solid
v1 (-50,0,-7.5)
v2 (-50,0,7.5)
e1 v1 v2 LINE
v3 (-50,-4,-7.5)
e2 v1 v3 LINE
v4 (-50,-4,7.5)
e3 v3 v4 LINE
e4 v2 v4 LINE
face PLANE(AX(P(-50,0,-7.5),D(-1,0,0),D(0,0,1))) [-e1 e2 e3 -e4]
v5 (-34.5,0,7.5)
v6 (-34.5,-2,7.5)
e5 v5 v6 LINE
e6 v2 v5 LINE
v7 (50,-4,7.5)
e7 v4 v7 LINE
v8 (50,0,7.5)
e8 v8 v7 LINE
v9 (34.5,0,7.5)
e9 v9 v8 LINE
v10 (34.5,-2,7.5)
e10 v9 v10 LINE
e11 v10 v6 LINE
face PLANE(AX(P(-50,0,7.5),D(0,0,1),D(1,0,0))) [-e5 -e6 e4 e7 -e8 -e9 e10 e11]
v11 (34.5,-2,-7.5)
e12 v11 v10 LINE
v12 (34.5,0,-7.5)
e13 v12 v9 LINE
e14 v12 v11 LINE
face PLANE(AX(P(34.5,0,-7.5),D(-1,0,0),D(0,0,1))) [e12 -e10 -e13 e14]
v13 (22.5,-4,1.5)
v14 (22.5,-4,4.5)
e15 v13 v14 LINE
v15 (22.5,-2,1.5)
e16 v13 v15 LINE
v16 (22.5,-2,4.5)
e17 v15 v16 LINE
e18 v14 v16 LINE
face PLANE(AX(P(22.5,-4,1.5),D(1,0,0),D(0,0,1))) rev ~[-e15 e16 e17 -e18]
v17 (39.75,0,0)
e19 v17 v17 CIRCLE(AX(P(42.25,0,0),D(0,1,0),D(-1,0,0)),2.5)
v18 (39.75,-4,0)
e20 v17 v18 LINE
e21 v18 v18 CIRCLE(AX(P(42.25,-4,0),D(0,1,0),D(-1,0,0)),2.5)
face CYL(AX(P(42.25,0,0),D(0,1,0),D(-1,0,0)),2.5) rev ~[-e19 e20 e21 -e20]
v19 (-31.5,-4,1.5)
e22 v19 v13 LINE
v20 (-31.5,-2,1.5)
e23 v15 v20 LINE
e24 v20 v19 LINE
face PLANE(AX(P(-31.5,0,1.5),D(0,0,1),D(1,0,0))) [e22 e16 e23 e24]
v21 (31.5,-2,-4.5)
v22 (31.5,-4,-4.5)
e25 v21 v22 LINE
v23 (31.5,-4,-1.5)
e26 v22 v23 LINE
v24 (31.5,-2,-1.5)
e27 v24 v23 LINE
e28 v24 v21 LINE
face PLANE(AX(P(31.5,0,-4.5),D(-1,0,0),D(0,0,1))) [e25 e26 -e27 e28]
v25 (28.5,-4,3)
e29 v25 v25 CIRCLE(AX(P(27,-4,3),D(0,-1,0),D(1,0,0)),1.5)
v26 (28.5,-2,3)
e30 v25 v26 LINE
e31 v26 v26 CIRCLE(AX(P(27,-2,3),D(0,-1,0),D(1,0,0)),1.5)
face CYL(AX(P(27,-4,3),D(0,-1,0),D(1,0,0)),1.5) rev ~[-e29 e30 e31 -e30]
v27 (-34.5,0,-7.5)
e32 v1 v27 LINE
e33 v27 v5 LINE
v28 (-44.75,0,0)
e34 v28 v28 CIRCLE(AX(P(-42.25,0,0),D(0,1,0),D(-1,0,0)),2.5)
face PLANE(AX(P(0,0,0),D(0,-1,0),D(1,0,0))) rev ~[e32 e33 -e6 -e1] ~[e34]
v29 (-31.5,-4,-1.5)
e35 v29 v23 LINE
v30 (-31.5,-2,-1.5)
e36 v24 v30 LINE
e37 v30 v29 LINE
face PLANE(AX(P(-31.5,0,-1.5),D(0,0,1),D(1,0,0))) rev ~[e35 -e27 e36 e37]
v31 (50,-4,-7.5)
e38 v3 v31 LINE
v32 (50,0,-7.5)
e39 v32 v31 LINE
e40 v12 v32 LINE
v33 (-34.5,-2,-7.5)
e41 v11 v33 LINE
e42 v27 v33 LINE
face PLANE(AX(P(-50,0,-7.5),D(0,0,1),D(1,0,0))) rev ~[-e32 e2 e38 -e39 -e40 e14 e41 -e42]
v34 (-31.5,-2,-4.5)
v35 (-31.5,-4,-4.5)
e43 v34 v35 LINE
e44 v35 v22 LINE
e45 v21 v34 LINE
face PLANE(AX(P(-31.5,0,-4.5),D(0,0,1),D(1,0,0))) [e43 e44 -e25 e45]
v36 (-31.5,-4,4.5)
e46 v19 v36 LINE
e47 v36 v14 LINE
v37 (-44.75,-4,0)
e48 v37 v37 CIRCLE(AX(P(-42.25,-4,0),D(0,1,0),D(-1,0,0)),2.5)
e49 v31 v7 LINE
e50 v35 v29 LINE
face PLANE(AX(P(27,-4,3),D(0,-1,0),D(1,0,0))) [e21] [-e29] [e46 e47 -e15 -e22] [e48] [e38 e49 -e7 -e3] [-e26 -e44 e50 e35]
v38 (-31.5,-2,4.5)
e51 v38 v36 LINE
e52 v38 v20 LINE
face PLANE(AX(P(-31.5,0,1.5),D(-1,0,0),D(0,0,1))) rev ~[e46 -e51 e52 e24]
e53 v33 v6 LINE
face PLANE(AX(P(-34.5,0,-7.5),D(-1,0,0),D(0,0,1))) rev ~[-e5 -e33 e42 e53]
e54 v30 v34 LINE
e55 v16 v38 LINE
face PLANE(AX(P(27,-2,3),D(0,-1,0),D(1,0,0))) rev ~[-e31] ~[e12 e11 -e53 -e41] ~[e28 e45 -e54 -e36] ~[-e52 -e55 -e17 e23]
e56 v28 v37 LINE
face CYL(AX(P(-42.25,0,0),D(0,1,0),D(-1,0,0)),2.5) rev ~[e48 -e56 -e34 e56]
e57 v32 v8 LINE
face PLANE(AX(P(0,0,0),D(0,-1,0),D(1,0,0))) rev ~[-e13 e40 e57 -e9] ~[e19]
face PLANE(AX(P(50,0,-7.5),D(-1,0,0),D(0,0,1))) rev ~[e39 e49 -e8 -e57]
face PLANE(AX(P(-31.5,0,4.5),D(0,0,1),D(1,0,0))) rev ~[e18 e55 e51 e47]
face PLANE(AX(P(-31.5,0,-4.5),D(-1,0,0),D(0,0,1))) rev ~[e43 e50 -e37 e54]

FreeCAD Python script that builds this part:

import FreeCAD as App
import Part
import Sketcher
from FreeCAD import Vector

doc = App.newDocument("Part")
params = doc.addObject("Spreadsheet::Sheet", "Params")
for row, (alias, value) in enumerate([
    ("sketch1_width", "100 mm"),
    ("sketch1_width2", "63 mm"),
    ("sketch1_height", "15 mm"),
    ("sketch1_height2", "3 mm"),
    ("pad1_length", "4 mm"),
    ("sketch2_width", "69 mm"),
    ("sketch2_height", "15 mm"),
    ("pocket1_length", "2 mm"),
    ("sketch3_diameter", "5 mm"),
    ("pocket2_length", "25 mm"),
    ("sketch4_diameter", "5 mm"),
    ("pocket3_length", "25 mm"),
    ("sketch5_width", "9 mm"),
    ("sketch5_height", "3 mm"),
    ("pad2_length", "2 mm"),
    ("sketch6_diameter", "3 mm"),
    ("pocket4_length", "25 mm"),
], start=1):
    params.set(f"A{row}", alias)
    params.set(f"B{row}", "=" + value)
    params.setAlias(f"B{row}", alias)

body = doc.addObject("PartDesign::Body", "Body")

# Sketch on XZ plane
sketch1 = doc.addObject("Sketcher::SketchObject", "Sketch")
body.addObject(sketch1)
sketch1.AttachmentSupport = (doc.XZ_Plane, [""])
sketch1.MapMode = "FlatFace"
sketch1.addGeometry([
    Part.LineSegment(Vector(-50, 7.5, 0), Vector(-50, -7.5, 0)),  # 0
    Part.LineSegment(Vector(-50, -7.5, 0), Vector(50, -7.5, 0)),  # 1
    Part.LineSegment(Vector(50, -7.5, 0), Vector(50, 7.5, 0)),  # 2
    Part.LineSegment(Vector(50, 7.5, 0), Vector(-50, 7.5, 0)),  # 3
    Part.LineSegment(Vector(31.5, -4.5, 0), Vector(-31.5, -4.5, 0)),  # 4
    Part.LineSegment(Vector(-31.5, -4.5, 0), Vector(-31.5, -1.5, 0)),  # 5
    Part.LineSegment(Vector(-31.5, -1.5, 0), Vector(31.5, -1.5, 0)),  # 6
    Part.LineSegment(Vector(31.5, -1.5, 0), Vector(31.5, -4.5, 0)),  # 7
    Part.LineSegment(Vector(31.5, 1.5, 0), Vector(-31.5, 1.5, 0)),  # 8
    Part.LineSegment(Vector(-31.5, 1.5, 0), Vector(-31.5, 4.5, 0)),  # 9
    Part.LineSegment(Vector(-31.5, 4.5, 0), Vector(31.5, 4.5, 0)),  # 10
    Part.LineSegment(Vector(31.5, 4.5, 0), Vector(31.5, 1.5, 0)),  # 11
], False)
sketch1.addConstraint([
    Sketcher.Constraint("Coincident", 0, 2, 1, 1),
    Sketcher.Constraint("Coincident", 1, 2, 2, 1),
    Sketcher.Constraint("Coincident", 2, 2, 3, 1),
    Sketcher.Constraint("Coincident", 3, 2, 0, 1),
    Sketcher.Constraint("Coincident", 4, 2, 5, 1),
    Sketcher.Constraint("Coincident", 5, 2, 6, 1),
    Sketcher.Constraint("Coincident", 6, 2, 7, 1),
    Sketcher.Constraint("Coincident", 7, 2, 4, 1),
    Sketcher.Constraint("Coincident", 8, 2, 9, 1),
    Sketcher.Constraint("Coincident", 9, 2, 10, 1),
    Sketcher.Constraint("Coincident", 10, 2, 11, 1),
    Sketcher.Constraint("Coincident", 11, 2, 8, 1),
    Sketcher.Constraint("Vertical", 0),
    Sketcher.Constraint("Horizontal", 1),
    Sketcher.Constraint("Vertical", 2),
    Sketcher.Constraint("Horizontal", 3),
    Sketcher.Constraint("Horizontal", 4),
    Sketcher.Constraint("Vertical", 5),
    Sketcher.Constraint("Horizontal", 6),
    Sketcher.Constraint("Vertical", 7),
    Sketcher.Constraint("Horizontal", 8),
    Sketcher.Constraint("Vertical", 9),
    Sketcher.Constraint("Horizontal", 10),
    Sketcher.Constraint("Vertical", 11),
    Sketcher.Constraint("Symmetric", 0, 2, 2, 2, -1, 1),
    Sketcher.Constraint("Symmetric", 6, 2, 8, 2, -1, 1),
    Sketcher.Constraint("Symmetric", 4, 2, 10, 2, -1, 1),
    Sketcher.Constraint("Vertical", 5, 2, 8, 2),
    Sketcher.Constraint("DistanceX", 1, 1, 1, 2, 100.0),
    Sketcher.Constraint("DistanceX", 4, 2, 4, 1, 63.0),
    Sketcher.Constraint("DistanceY", 0, 2, 0, 1, 15.0),
    Sketcher.Constraint("DistanceY", 5, 1, 5, 2, 3.0),
    Sketcher.Constraint("DistanceY", 0, 2, 4, 2, 3.0),
])
sketch1.setExpression("Constraints[28]", "Params.sketch1_width")
sketch1.setExpression("Constraints[29]", "Params.sketch1_width2")
sketch1.setExpression("Constraints[30]", "Params.sketch1_height")
sketch1.setExpression("Constraints[31]", "Params.sketch1_height2")
pad1 = doc.addObject("PartDesign::Pad", "Pad")
body.addObject(pad1)
pad1.Profile = sketch1
pad1.setExpression("Length", "Params.pad1_length")

# Sketch on XZ plane
sketch2 = doc.addObject("Sketcher::SketchObject", "Sketch001")
body.addObject(sketch2)
sketch2.AttachmentSupport = (doc.XZ_Plane, [""])
sketch2.MapMode = "FlatFace"
sketch2.addGeometry([
    Part.LineSegment(Vector(34, 8, 0), Vector(34, -8, 0)),
    Part.LineSegment(Vector(34, -8, 0), Vector(-34, -8, 0)),
    Part.LineSegment(Vector(-34, -8, 0), Vector(-34, 8, 0)),
    Part.LineSegment(Vector(-34, 8, 0), Vector(34, 8, 0)),
], False)
sketch2.addConstraint([
    Sketcher.Constraint("Coincident", 0, 2, 1, 1),
    Sketcher.Constraint("Coincident", 1, 2, 2, 1),
    Sketcher.Constraint("Coincident", 2, 2, 3, 1),
    Sketcher.Constraint("Coincident", 3, 2, 0, 1),
    Sketcher.Constraint("Vertical", 0),
    Sketcher.Constraint("Horizontal", 1),
    Sketcher.Constraint("Vertical", 2),
    Sketcher.Constraint("Horizontal", 3),
    Sketcher.Constraint("Symmetric", 0, 2, 2, 2, -1, 1),
    Sketcher.Constraint("DistanceX", 1, 2, 1, 1, 69.0),
    Sketcher.Constraint("DistanceY", 0, 2, 0, 1, 15.0),
])
sketch2.setExpression("Constraints[9]", "Params.sketch2_width")
sketch2.setExpression("Constraints[10]", "Params.sketch2_height")
pocket1 = doc.addObject("PartDesign::Pocket", "Pocket")
body.addObject(pocket1)
pocket1.Profile = sketch2
pocket1.setExpression("Length", "Params.pocket1_length")
pocket1.Reversed = True

# Sketch on XZ plane
sketch3 = doc.addObject("Sketcher::SketchObject", "Sketch002")
body.addObject(sketch3)
sketch3.AttachmentSupport = (doc.XZ_Plane, [""])
sketch3.MapMode = "FlatFace"
sketch3.addGeometry(Part.Circle(Vector(42.2, 0, 0), Vector(0, 0, 1), 2.5), False)
sketch3.addConstraint([
    Sketcher.Constraint("PointOnObject", 0, 3, -1),
    Sketcher.Constraint("Diameter", 0, 5.0),
    Sketcher.Constraint("DistanceX", -1, 1, 0, 3, 42.25),
])
sketch3.setExpression("Constraints[1]", "Params.sketch3_diameter")
pocket2 = doc.addObject("PartDesign::Pocket", "Pocket001")
body.addObject(pocket2)
pocket2.Profile = sketch3
pocket2.setExpression("Length", "Params.pocket2_length")
pocket2.Reversed = True

# Sketch on XZ plane
sketch4 = doc.addObject("Sketcher::SketchObject", "Sketch003")
body.addObject(sketch4)
sketch4.AttachmentSupport = (doc.XZ_Plane, [""])
sketch4.MapMode = "FlatFace"
sketch4.addGeometry(Part.Circle(Vector(-42.2, 0, 0), Vector(0, 0, 1), 2.5), False)
sketch4.addConstraint([
    Sketcher.Constraint("PointOnObject", 0, 3, -1),
    Sketcher.Constraint("Diameter", 0, 5.0),
    Sketcher.Constraint("DistanceX", 0, 3, -1, 1, 42.25),
])
sketch4.setExpression("Constraints[1]", "Params.sketch4_diameter")
pocket3 = doc.addObject("PartDesign::Pocket", "Pocket002")
body.addObject(pocket3)
pocket3.Profile = sketch4
pocket3.setExpression("Length", "Params.pocket3_length")
pocket3.Reversed = True

# Sketch on XZ plane
sketch5 = doc.addObject("Sketcher::SketchObject", "Sketch004")
body.addObject(sketch5)
sketch5.AttachmentSupport = (doc.XZ_Plane, [""])
sketch5.MapMode = "FlatFace"
sketch5.AttachmentOffset = App.Placement(Vector(0, 0, 4), App.Rotation())
sketch5.addGeometry([
    Part.LineSegment(Vector(22.5, 4.5, 0), Vector(22.5, 1.5, 0)),
    Part.LineSegment(Vector(22.5, 1.5, 0), Vector(31.5, 1.5, 0)),
    Part.LineSegment(Vector(31.5, 1.5, 0), Vector(31.5, 4.5, 0)),
    Part.LineSegment(Vector(31.5, 4.5, 0), Vector(22.5, 4.5, 0)),
], False)
sketch5.addConstraint([
    Sketcher.Constraint("Coincident", 0, 2, 1, 1),
    Sketcher.Constraint("Coincident", 1, 2, 2, 1),
    Sketcher.Constraint("Coincident", 2, 2, 3, 1),
    Sketcher.Constraint("Coincident", 3, 2, 0, 1),
    Sketcher.Constraint("Vertical", 0),
    Sketcher.Constraint("Horizontal", 1),
    Sketcher.Constraint("Vertical", 2),
    Sketcher.Constraint("Horizontal", 3),
    Sketcher.Constraint("DistanceX", 1, 1, 1, 2, 9.0),
    Sketcher.Constraint("DistanceY", 0, 2, 0, 1, 3.0),
    Sketcher.Constraint("DistanceX", -1, 1, 0, 2, 22.5),
    Sketcher.Constraint("DistanceY", -1, 1, 0, 2, 1.5),
])
sketch5.setExpression("Constraints[8]", "Params.sketch5_width")
sketch5.setExpression("Constraints[9]", "Params.sketch5_height")
pad2 = doc.addObject("PartDesign::Pad", "Pad001")
body.addObject(pad2)
pad2.Profile = sketch5
pad2.setExpression("Length", "Params.pad2_length")
pad2.Reversed = True

# Sketch on XZ plane
sketch6 = doc.addObject("Sketcher::SketchObject", "Sketch005")
body.addObject(sketch6)
sketch6.AttachmentSupport = (doc.XZ_Plane, [""])
sketch6.MapMode = "FlatFace"
sketch6.AttachmentOffset = App.Placement(Vector(0, 0, 4), App.Rotation())
sketch6.addGeometry(Part.Circle(Vector(27, 3, 0), Vector(0, 0, 1), 1.5), False)
sketch6.addConstraint([
    Sketcher.Constraint("Diameter", 0, 3.0),
    Sketcher.Constraint("DistanceX", -1, 1, 0, 3, 27.0),
    Sketcher.Constraint("DistanceY", -1, 1, 0, 3, 3.0),
])
sketch6.setExpression("Constraints[0]", "Params.sketch6_diameter")
pocket4 = doc.addObject("PartDesign::Pocket", "Pocket003")
body.addObject(pocket4)
pocket4.Profile = sketch6
pocket4.setExpression("Length", "Params.pocket4_length")

doc.recompute()
